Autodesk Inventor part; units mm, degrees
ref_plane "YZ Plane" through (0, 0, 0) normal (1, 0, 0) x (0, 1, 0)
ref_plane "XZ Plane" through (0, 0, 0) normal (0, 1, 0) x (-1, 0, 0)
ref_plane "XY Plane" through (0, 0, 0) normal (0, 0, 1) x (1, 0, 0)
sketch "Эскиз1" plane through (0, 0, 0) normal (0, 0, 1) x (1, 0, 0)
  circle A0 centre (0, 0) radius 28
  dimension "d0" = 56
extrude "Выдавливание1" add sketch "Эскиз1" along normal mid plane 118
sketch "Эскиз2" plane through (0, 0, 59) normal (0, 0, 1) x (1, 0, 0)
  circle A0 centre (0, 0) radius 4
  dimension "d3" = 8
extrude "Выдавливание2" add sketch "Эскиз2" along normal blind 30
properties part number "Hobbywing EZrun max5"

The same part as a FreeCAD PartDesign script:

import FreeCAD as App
import Part
import Sketcher
from FreeCAD import Vector

doc = App.newDocument("Part")
body = doc.addObject("PartDesign::Body", "Body")

# Sketch on XY plane
sketch1 = body.newObject("Sketcher::SketchObject", "Sketch")
sketch1.AttachmentSupport = (doc.getObject("XY_Plane"), [""])
sketch1.MapMode = "FlatFace"
sketch1.addGeometry(Part.Circle(Vector(0, 0, 0), Vector(0, 0, 1), 28), False)
sketch1.addConstraint(Sketcher.Constraint("Coincident", 0, 3, -1, 1))
sketch1.addConstraint(Sketcher.Constraint("Diameter", 0, 56.0))
pad1 = body.newObject("PartDesign::Pad", "Pad")
pad1.Profile = sketch1
pad1.Length = 118
pad1.Midplane = True

# Sketch on XY plane
sketch2 = body.newObject("Sketcher::SketchObject", "Sketch001")
sketch2.AttachmentSupport = (doc.getObject("XY_Plane"), [""])
sketch2.MapMode = "FlatFace"
sketch2.AttachmentOffset = App.Placement(Vector(0, 0, 59), App.Rotation())
sketch2.addGeometry(Part.Circle(Vector(0, 0, 0), Vector(0, 0, 1), 4), False)
sketch2.addConstraint(Sketcher.Constraint("Coincident", 0, 3, -1, 1))
sketch2.addConstraint(Sketcher.Constraint("Diameter", 0, 8.0))
pad2 = body.newObject("PartDesign::Pad", "Pad001")
pad2.Profile = sketch2
pad2.Length = 30

doc.recompute()
